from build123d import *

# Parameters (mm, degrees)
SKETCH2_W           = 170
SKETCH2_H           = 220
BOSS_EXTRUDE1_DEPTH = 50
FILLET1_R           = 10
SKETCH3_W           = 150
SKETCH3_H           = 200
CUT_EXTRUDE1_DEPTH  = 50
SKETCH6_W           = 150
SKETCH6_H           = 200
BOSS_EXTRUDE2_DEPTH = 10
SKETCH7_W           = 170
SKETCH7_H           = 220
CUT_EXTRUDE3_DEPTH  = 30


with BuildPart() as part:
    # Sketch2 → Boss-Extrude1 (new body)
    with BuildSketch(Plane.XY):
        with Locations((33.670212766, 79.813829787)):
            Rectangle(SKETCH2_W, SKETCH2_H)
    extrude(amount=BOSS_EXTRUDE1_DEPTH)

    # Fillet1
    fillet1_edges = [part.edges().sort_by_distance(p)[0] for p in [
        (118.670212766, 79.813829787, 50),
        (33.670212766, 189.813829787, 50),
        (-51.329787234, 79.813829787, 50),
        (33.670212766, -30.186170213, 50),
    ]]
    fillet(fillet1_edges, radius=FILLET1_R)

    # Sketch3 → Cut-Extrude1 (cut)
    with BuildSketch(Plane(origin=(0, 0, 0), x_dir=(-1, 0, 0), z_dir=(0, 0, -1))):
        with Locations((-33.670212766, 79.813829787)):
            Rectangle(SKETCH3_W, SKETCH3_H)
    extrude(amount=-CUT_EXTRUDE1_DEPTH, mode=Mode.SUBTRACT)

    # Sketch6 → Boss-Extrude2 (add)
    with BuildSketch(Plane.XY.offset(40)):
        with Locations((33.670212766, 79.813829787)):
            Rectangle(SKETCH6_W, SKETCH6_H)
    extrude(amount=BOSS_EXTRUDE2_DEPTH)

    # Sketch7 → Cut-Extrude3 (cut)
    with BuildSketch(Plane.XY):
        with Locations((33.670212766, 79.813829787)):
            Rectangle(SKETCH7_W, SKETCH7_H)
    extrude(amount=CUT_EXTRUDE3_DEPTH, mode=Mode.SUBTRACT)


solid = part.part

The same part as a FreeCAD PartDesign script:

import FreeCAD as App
import Part
import Sketcher
from FreeCAD import Vector
Q = App.Units.Quantity


def edges_at(feature, points):
    """Names of the edges that pass closest to the given points."""
    edges = feature.Shape.Edges
    near = lambda p: min(range(len(edges)), key=lambda i: edges[i].distToShape(Part.Vertex(*p))[0])
    return sorted({f"Edge{near(p) + 1}" for p in points})

doc = App.newDocument("Part")
body = doc.addObject("PartDesign::Body", "Body")

# Sketch on XY plane
sketch1 = doc.addObject("Sketcher::SketchObject", "Sketch")
body.addObject(sketch1)
sketch1.AttachmentSupport = (doc.XY_Plane, [""])
sketch1.MapMode = "FlatFace"
sketch1.addGeometry([
    Part.LineSegment(Vector(-51, 190, 0), Vector(-51, -30, 0)),
    Part.LineSegment(Vector(-51, -30, 0), Vector(119, -30, 0)),
    Part.LineSegment(Vector(119, -30, 0), Vector(119, 190, 0)),
    Part.LineSegment(Vector(119, 190, 0), Vector(-51, 190, 0)),
], False)
sketch1.addConstraint([
    Sketcher.Constraint("Coincident", 0, 2, 1, 1),
    Sketcher.Constraint("Coincident", 1, 2, 2, 1),
    Sketcher.Constraint("Coincident", 2, 2, 3, 1),
    Sketcher.Constraint("Coincident", 3, 2, 0, 1),
    Sketcher.Constraint("Vertical", 0),
    Sketcher.Constraint("Horizontal", 1),
    Sketcher.Constraint("Vertical", 2),
    Sketcher.Constraint("Horizontal", 3),
    Sketcher.Constraint("DistanceX", 1, 1, 1, 2, Q("170 mm")),
    Sketcher.Constraint("DistanceY", 0, 2, 0, 1, Q("220 mm")),
    Sketcher.Constraint("DistanceY", 0, 2, -1, 1, Q("30.18617 mm")),
    Sketcher.Constraint("DistanceX", 0, 2, -1, 1, Q("51.329787 mm")),
])
pad1 = doc.addObject("PartDesign::Pad", "Pad")
body.addObject(pad1)
pad1.Profile = sketch1
pad1.Length = 50
doc.recompute()

fillet = doc.addObject("PartDesign::Fillet", "Fillet")
body.addObject(fillet)
fillet.Base = (pad1, edges_at(pad1, [
    (118.67, 79.814, 50),
    (33.67, 189.814, 50),
    (-51.33, 79.814, 50),
    (33.67, -30.186, 50),
]))
fillet.Radius = 10

# Sketch on XY plane
sketch2 = doc.addObject("Sketcher::SketchObject", "Sketch001")
body.addObject(sketch2)
sketch2.AttachmentSupport = (doc.XY_Plane, [""])
sketch2.MapMode = "FlatFace"
sketch2.addGeometry([
    Part.LineSegment(Vector(109, 180, 0), Vector(109, -20, 0)),
    Part.LineSegment(Vector(109, -20, 0), Vector(-41, -20, 0)),
    Part.LineSegment(Vector(-41, -20, 0), Vector(-41, 180, 0)),
    Part.LineSegment(Vector(-41, 180, 0), Vector(109, 180, 0)),
], False)
sketch2.addConstraint([
    Sketcher.Constraint("Coincident", 0, 2, 1, 1),
    Sketcher.Constraint("Coincident", 1, 2, 2, 1),
    Sketcher.Constraint("Coincident", 2, 2, 3, 1),
    Sketcher.Constraint("Coincident", 3, 2, 0, 1),
    Sketcher.Constraint("Vertical", 0),
    Sketcher.Constraint("Horizontal", 1),
    Sketcher.Constraint("Vertical", 2),
    Sketcher.Constraint("Horizontal", 3),
    Sketcher.Constraint("DistanceX", 1, 2, 1, 1, Q("150 mm")),
    Sketcher.Constraint("DistanceY", 0, 2, 0, 1, Q("200 mm")),
    Sketcher.Constraint("DistanceY", 0, 2, -1, 1, Q("20.18617 mm")),
    Sketcher.Constraint("DistanceX", -1, 1, 0, 2, Q("108.670213 mm")),
])
pocket1 = doc.addObject("PartDesign::Pocket", "Pocket")
body.addObject(pocket1)
pocket1.Profile = sketch2
pocket1.Length = 50
pocket1.Reversed = True

# Sketch on XY plane
sketch3 = doc.addObject("Sketcher::SketchObject", "Sketch002")
body.addObject(sketch3)
sketch3.AttachmentSupport = (doc.XY_Plane, [""])
sketch3.MapMode = "FlatFace"
sketch3.AttachmentOffset = App.Placement(Vector(0, 0, 40), App.Rotation())
sketch3.addGeometry([
    Part.LineSegment(Vector(-41, 180, 0), Vector(-41, -20, 0)),
    Part.LineSegment(Vector(-41, -20, 0), Vector(109, -20, 0)),
    Part.LineSegment(Vector(109, -20, 0), Vector(109, 180, 0)),
    Part.LineSegment(Vector(109, 180, 0), Vector(-41, 180, 0)),
], False)
sketch3.addConstraint([
    Sketcher.Constraint("Coincident", 0, 2, 1, 1),
    Sketcher.Constraint("Coincident", 1, 2, 2, 1),
    Sketcher.Constraint("Coincident", 2, 2, 3, 1),
    Sketcher.Constraint("Coincident", 3, 2, 0, 1),
    Sketcher.Constraint("Vertical", 0),
    Sketcher.Constraint("Horizontal", 1),
    Sketcher.Constraint("Vertical", 2),
    Sketcher.Constraint("Horizontal", 3),
    Sketcher.Constraint("DistanceX", 1, 1, 1, 2, Q("150 mm")),
    Sketcher.Constraint("DistanceY", 0, 2, 0, 1, Q("200 mm")),
    Sketcher.Constraint("DistanceY", 0, 2, -1, 1, Q("20.18617 mm")),
    Sketcher.Constraint("DistanceX", 0, 2, -1, 1, Q("41.329787 mm")),
])
pad2 = doc.addObject("PartDesign::Pad", "Pad001")
body.addObject(pad2)
pad2.Profile = sketch3
pad2.Length = 10

# Sketch on XY plane
sketch4 = doc.addObject("Sketcher::SketchObject", "Sketch003")
body.addObject(sketch4)
sketch4.AttachmentSupport = (doc.XY_Plane, [""])
sketch4.MapMode = "FlatFace"
sketch4.addGeometry([
    Part.LineSegment(Vector(-51, 190, 0), Vector(-51, -30, 0)),
    Part.LineSegment(Vector(-51, -30, 0), Vector(119, -30, 0)),
    Part.LineSegment(Vector(119, -30, 0), Vector(119, 190, 0)),
    Part.LineSegment(Vector(119, 190, 0), Vector(-51, 190, 0)),
], False)
sketch4.addConstraint([
    Sketcher.Constraint("Coincident", 0, 2, 1, 1),
    Sketcher.Constraint("Coincident", 1, 2, 2, 1),
    Sketcher.Constraint("Coincident", 2, 2, 3, 1),
    Sketcher.Constraint("Coincident", 3, 2, 0, 1),
    Sketcher.Constraint("Vertical", 0),
    Sketcher.Constraint("Horizontal", 1),
    Sketcher.Constraint("Vertical", 2),
    Sketcher.Constraint("Horizontal", 3),
    Sketcher.Constraint("DistanceX", 1, 1, 1, 2, Q("170 mm")),
    Sketcher.Constraint("DistanceY", 0, 2, 0, 1, Q("220 mm")),
    Sketcher.Constraint("DistanceY", 0, 2, -1, 1, Q("30.18617 mm")),
    Sketcher.Constraint("DistanceX", 0, 2, -1, 1, Q("51.329787 mm")),
])
pocket2 = doc.addObject("PartDesign::Pocket", "Pocket001")
body.addObject(pocket2)
pocket2.Profile = sketch4
pocket2.Length = 30
pocket2.Reversed = True

doc.recompute()
